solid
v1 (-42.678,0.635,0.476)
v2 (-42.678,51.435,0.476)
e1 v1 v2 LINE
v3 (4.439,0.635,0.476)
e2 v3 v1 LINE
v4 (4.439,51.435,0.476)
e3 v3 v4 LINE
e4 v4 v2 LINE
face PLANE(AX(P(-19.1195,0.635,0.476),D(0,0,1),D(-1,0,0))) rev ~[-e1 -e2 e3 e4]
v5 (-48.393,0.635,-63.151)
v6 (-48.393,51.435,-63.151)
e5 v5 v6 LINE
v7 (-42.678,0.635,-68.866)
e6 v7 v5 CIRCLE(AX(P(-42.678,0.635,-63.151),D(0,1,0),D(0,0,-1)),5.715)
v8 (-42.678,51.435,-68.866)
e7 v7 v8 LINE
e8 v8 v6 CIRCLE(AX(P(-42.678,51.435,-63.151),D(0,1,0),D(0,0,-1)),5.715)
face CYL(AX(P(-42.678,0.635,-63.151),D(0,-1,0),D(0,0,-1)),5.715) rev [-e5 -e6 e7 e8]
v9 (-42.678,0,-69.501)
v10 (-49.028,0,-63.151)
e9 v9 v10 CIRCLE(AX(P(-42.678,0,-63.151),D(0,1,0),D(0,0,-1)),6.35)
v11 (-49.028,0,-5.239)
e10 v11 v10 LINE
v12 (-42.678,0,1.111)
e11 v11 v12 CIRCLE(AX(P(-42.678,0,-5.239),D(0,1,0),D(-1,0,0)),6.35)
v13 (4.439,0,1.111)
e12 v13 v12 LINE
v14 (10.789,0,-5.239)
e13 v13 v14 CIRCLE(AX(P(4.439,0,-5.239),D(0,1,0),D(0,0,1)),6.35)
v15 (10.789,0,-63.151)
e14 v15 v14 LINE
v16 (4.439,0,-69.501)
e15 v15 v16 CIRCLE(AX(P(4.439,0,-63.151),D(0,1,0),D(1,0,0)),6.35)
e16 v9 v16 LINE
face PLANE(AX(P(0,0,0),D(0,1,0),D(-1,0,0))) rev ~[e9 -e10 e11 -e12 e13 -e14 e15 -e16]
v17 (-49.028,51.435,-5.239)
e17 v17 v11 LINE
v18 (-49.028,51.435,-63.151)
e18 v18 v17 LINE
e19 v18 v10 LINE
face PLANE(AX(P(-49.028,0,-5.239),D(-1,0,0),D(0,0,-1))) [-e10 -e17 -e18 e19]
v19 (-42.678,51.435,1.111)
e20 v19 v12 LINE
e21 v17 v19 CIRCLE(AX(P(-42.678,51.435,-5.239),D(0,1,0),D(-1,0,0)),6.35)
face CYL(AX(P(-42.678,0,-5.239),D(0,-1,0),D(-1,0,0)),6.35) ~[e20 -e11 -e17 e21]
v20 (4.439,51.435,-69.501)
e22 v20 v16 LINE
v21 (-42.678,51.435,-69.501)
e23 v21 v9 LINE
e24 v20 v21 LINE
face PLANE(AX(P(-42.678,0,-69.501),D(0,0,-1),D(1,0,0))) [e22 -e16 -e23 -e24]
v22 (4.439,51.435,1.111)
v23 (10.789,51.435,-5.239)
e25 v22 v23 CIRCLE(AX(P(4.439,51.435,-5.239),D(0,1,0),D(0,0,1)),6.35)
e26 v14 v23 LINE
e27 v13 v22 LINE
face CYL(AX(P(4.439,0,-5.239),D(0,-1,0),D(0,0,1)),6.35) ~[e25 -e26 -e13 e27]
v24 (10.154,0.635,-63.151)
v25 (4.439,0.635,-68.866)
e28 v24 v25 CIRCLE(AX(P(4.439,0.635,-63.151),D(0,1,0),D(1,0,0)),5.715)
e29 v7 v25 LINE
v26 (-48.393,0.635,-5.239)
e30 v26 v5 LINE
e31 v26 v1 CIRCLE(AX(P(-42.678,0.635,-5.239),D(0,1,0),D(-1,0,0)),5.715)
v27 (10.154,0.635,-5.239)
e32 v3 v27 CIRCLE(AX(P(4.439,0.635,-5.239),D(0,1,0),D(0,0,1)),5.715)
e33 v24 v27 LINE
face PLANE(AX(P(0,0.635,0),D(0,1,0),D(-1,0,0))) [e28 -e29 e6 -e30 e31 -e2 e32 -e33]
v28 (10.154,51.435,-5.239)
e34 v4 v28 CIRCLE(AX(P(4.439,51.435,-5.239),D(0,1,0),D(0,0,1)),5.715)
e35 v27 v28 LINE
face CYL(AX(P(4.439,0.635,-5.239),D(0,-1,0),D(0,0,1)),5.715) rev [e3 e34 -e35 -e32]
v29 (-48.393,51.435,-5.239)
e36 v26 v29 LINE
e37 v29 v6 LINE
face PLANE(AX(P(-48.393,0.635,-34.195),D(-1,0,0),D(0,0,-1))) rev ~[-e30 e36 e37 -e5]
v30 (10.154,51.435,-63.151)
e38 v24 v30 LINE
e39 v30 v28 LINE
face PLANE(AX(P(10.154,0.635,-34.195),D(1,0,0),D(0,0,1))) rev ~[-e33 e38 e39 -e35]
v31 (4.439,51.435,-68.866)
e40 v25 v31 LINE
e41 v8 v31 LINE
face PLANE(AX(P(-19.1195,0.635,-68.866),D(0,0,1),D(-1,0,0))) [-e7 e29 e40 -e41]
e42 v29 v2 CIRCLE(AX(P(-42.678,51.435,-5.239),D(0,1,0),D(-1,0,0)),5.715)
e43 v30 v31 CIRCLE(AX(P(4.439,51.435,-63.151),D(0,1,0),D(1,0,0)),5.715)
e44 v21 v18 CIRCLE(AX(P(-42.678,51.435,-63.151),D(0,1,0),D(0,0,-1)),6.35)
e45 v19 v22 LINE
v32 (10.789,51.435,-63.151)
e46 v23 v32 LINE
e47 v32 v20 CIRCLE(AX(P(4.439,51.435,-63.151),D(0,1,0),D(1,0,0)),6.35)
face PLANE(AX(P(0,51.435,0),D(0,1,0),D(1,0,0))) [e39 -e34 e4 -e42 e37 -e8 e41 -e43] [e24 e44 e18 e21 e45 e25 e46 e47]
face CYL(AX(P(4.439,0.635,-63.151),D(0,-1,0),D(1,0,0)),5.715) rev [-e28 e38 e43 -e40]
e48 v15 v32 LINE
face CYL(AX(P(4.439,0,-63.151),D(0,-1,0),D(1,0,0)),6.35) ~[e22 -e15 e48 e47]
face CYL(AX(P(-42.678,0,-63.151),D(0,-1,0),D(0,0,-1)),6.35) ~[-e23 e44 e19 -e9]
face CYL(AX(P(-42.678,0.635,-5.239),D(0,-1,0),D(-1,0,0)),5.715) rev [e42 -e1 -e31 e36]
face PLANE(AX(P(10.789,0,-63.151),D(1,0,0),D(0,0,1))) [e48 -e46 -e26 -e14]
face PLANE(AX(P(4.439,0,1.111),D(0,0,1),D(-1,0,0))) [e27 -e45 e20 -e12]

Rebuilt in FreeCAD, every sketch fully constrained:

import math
import FreeCAD as App
import Part
import Sketcher

V = App.Vector
Q = App.Units.Quantity

doc = App.newDocument("Part")
body = doc.addObject("PartDesign::Body", "Body")

# Sketch on XZ plane
sketch1 = doc.addObject("Sketcher::SketchObject", "Sketch")
body.addObject(sketch1)
sketch1.AttachmentSupport = (doc.XZ_Plane, [""])
sketch1.MapMode = "FlatFace"
sketch1.addGeometry([
    Part.LineSegment(V(-43, 1, 0), V(4, 1, 0)),  # 0
    Part.ArcOfCircle(Part.Circle(V(4, -5, 0), V(0, 0, 1), 6), math.radians(0), math.radians(90)),  # 1
    Part.LineSegment(V(11, -5, 0), V(11, -63, 0)),  # 2
    Part.ArcOfCircle(Part.Circle(V(4, -63, 0), V(0, 0, 1), 6), math.radians(-90), math.radians(0)),  # 3
    Part.LineSegment(V(4, -70, 0), V(-43, -70, 0)),  # 4
    Part.ArcOfCircle(Part.Circle(V(-43, -63, 0), V(0, 0, 1), 6), math.radians(180), math.radians(270)),  # 5
    Part.LineSegment(V(-49, -63, 0), V(-49, -5, 0)),  # 6
    Part.ArcOfCircle(Part.Circle(V(-43, -5, 0), V(0, 0, 1), 6), math.radians(90), math.radians(180)),  # 7
], False)
sketch1.addConstraint([
    Sketcher.Constraint("Tangent", 0, 2, 1, 2),
    Sketcher.Constraint("Tangent", 1, 1, 2, 1),
    Sketcher.Constraint("Tangent", 2, 2, 3, 2),
    Sketcher.Constraint("Tangent", 3, 1, 4, 1),
    Sketcher.Constraint("Tangent", 4, 2, 5, 2),
    Sketcher.Constraint("Tangent", 5, 1, 6, 1),
    Sketcher.Constraint("Tangent", 6, 2, 7, 2),
    Sketcher.Constraint("Tangent", 7, 1, 0, 1),
    Sketcher.Constraint("Horizontal", 0),
    Sketcher.Constraint("Vertical", 2),
    Sketcher.Constraint("Horizontal", 4),
    Sketcher.Constraint("Vertical", 6),
    Sketcher.Constraint("Equal", 1, 3),
    Sketcher.Constraint("Equal", 3, 5),
    Sketcher.Constraint("Equal", 5, 7),
    Sketcher.Constraint("Radius", 1, Q("0.25 in")),
    Sketcher.Constraint("DistanceY", 2, 2, 2, 1, Q("2.28 in")),
    Sketcher.Constraint("DistanceX", 0, 1, 0, 2, Q("1.855 in")),
    Sketcher.Constraint("DistanceX", -1, 1, 1, 3, 4.439),
    Sketcher.Constraint("DistanceY", 1, 3, -1, 1, 5.239),
])
pad1 = doc.addObject("PartDesign::Pad", "Pad")
body.addObject(pad1)
pad1.Profile = sketch1
pad1.Length = Q("0.025 in")
pad1.Reversed = True

# Sketch on XZ plane
sketch2 = doc.addObject("Sketcher::SketchObject", "Sketch001")
body.addObject(sketch2)
sketch2.AttachmentSupport = (doc.XZ_Plane, [""])
sketch2.MapMode = "FlatFace"
sketch2.AttachmentOffset = App.Placement(V(0, 0, -0.025 * 25.4), App.Rotation())
sketch2.addGeometry([
    Part.ArcOfCircle(Part.Circle(V(-43, -63, 0), V(0, 0, 1), 6), math.radians(180), math.radians(270)),  # 0
    Part.LineSegment(V(-49, -63, 0), V(-49, -5, 0)),  # 1
    Part.ArcOfCircle(Part.Circle(V(-43, -5, 0), V(0, 0, 1), 6), math.radians(90), math.radians(180)),  # 2
    Part.LineSegment(V(-43, 1, 0), V(4, 1, 0)),  # 3
    Part.ArcOfCircle(Part.Circle(V(4, -5, 0), V(0, 0, 1), 6), math.radians(0), math.radians(90)),  # 4
    Part.LineSegment(V(11, -5, 0), V(11, -63, 0)),  # 5
    Part.ArcOfCircle(Part.Circle(V(4, -63, 0), V(0, 0, 1), 6), math.radians(-90), math.radians(0)),  # 6
    Part.LineSegment(V(4, -70, 0), V(-43, -70, 0)),  # 7
    Part.LineSegment(V(-43, -69, 0), V(4, -69, 0)),  # 8
    Part.ArcOfCircle(Part.Circle(V(4, -63, 0), V(0, 0, 1), 6), math.radians(-90), math.radians(0)),  # 9
    Part.LineSegment(V(10, -63, 0), V(10, -5, 0)),  # 10
    Part.ArcOfCircle(Part.Circle(V(4, -5, 0), V(0, 0, 1), 6), math.radians(0), math.radians(90)),  # 11
    Part.LineSegment(V(4, 0, 0), V(-43, 0, 0)),  # 12
    Part.ArcOfCircle(Part.Circle(V(-43, -5, 0), V(0, 0, 1), 6), math.radians(90), math.radians(180)),  # 13
    Part.LineSegment(V(-48, -5, 0), V(-48, -63, 0)),  # 14
    Part.ArcOfCircle(Part.Circle(V(-43, -63, 0), V(0, 0, 1), 6), math.radians(180), math.radians(270)),  # 15
], False)
sketch2.addConstraint([
    Sketcher.Constraint("Tangent", 0, 1, 1, 1),
    Sketcher.Constraint("Tangent", 1, 2, 2, 2),
    Sketcher.Constraint("Tangent", 2, 1, 3, 1),
    Sketcher.Constraint("Tangent", 3, 2, 4, 2),
    Sketcher.Constraint("Tangent", 4, 1, 5, 1),
    Sketcher.Constraint("Tangent", 5, 2, 6, 2),
    Sketcher.Constraint("Tangent", 6, 1, 7, 1),
    Sketcher.Constraint("Tangent", 7, 2, 0, 2),
    Sketcher.Constraint("Tangent", 8, 2, 9, 1),
    Sketcher.Constraint("Tangent", 9, 2, 10, 1),
    Sketcher.Constraint("Tangent", 10, 2, 11, 1),
    Sketcher.Constraint("Tangent", 11, 2, 12, 1),
    Sketcher.Constraint("Tangent", 12, 2, 13, 1),
    Sketcher.Constraint("Tangent", 13, 2, 14, 1),
    Sketcher.Constraint("Tangent", 14, 2, 15, 1),
    Sketcher.Constraint("Tangent", 15, 2, 8, 1),
    Sketcher.Constraint("Vertical", 1),
    Sketcher.Constraint("Horizontal", 3),
    Sketcher.Constraint("Vertical", 5),
    Sketcher.Constraint("Horizontal", 7),
    Sketcher.Constraint("Horizontal", 8),
    Sketcher.Constraint("Vertical", 10),
    Sketcher.Constraint("Horizontal", 12),
    Sketcher.Constraint("Vertical", 14),
    Sketcher.Constraint("Coincident", 9, 3, 6, 3),
    Sketcher.Constraint("Coincident", 11, 3, 4, 3),
    Sketcher.Constraint("Coincident", 13, 3, 2, 3),
    Sketcher.Constraint("Equal", 0, 2),
    Sketcher.Constraint("Equal", 2, 4),
    Sketcher.Constraint("Equal", 4, 6),
    Sketcher.Constraint("Equal", 13, 15),
    Sketcher.Constraint("Radius", 9, Q("0.225 in")),
    Sketcher.Constraint("Radius", 0, Q("0.25 in")),
    Sketcher.Constraint("DistanceY", 1, 1, 1, 2, Q("2.28 in")),
    Sketcher.Constraint("DistanceX", 3, 1, 3, 2, Q("1.855 in")),
    Sketcher.Constraint("DistanceX", 0, 3, -1, 1, 42.678),
    Sketcher.Constraint("DistanceY", 0, 3, -1, 1, 63.151),
])
pad2 = doc.addObject("PartDesign::Pad", "Pad001")
body.addObject(pad2)
pad2.Profile = sketch2
pad2.Length = Q("2 in")
pad2.Reversed = True

doc.recompute()
